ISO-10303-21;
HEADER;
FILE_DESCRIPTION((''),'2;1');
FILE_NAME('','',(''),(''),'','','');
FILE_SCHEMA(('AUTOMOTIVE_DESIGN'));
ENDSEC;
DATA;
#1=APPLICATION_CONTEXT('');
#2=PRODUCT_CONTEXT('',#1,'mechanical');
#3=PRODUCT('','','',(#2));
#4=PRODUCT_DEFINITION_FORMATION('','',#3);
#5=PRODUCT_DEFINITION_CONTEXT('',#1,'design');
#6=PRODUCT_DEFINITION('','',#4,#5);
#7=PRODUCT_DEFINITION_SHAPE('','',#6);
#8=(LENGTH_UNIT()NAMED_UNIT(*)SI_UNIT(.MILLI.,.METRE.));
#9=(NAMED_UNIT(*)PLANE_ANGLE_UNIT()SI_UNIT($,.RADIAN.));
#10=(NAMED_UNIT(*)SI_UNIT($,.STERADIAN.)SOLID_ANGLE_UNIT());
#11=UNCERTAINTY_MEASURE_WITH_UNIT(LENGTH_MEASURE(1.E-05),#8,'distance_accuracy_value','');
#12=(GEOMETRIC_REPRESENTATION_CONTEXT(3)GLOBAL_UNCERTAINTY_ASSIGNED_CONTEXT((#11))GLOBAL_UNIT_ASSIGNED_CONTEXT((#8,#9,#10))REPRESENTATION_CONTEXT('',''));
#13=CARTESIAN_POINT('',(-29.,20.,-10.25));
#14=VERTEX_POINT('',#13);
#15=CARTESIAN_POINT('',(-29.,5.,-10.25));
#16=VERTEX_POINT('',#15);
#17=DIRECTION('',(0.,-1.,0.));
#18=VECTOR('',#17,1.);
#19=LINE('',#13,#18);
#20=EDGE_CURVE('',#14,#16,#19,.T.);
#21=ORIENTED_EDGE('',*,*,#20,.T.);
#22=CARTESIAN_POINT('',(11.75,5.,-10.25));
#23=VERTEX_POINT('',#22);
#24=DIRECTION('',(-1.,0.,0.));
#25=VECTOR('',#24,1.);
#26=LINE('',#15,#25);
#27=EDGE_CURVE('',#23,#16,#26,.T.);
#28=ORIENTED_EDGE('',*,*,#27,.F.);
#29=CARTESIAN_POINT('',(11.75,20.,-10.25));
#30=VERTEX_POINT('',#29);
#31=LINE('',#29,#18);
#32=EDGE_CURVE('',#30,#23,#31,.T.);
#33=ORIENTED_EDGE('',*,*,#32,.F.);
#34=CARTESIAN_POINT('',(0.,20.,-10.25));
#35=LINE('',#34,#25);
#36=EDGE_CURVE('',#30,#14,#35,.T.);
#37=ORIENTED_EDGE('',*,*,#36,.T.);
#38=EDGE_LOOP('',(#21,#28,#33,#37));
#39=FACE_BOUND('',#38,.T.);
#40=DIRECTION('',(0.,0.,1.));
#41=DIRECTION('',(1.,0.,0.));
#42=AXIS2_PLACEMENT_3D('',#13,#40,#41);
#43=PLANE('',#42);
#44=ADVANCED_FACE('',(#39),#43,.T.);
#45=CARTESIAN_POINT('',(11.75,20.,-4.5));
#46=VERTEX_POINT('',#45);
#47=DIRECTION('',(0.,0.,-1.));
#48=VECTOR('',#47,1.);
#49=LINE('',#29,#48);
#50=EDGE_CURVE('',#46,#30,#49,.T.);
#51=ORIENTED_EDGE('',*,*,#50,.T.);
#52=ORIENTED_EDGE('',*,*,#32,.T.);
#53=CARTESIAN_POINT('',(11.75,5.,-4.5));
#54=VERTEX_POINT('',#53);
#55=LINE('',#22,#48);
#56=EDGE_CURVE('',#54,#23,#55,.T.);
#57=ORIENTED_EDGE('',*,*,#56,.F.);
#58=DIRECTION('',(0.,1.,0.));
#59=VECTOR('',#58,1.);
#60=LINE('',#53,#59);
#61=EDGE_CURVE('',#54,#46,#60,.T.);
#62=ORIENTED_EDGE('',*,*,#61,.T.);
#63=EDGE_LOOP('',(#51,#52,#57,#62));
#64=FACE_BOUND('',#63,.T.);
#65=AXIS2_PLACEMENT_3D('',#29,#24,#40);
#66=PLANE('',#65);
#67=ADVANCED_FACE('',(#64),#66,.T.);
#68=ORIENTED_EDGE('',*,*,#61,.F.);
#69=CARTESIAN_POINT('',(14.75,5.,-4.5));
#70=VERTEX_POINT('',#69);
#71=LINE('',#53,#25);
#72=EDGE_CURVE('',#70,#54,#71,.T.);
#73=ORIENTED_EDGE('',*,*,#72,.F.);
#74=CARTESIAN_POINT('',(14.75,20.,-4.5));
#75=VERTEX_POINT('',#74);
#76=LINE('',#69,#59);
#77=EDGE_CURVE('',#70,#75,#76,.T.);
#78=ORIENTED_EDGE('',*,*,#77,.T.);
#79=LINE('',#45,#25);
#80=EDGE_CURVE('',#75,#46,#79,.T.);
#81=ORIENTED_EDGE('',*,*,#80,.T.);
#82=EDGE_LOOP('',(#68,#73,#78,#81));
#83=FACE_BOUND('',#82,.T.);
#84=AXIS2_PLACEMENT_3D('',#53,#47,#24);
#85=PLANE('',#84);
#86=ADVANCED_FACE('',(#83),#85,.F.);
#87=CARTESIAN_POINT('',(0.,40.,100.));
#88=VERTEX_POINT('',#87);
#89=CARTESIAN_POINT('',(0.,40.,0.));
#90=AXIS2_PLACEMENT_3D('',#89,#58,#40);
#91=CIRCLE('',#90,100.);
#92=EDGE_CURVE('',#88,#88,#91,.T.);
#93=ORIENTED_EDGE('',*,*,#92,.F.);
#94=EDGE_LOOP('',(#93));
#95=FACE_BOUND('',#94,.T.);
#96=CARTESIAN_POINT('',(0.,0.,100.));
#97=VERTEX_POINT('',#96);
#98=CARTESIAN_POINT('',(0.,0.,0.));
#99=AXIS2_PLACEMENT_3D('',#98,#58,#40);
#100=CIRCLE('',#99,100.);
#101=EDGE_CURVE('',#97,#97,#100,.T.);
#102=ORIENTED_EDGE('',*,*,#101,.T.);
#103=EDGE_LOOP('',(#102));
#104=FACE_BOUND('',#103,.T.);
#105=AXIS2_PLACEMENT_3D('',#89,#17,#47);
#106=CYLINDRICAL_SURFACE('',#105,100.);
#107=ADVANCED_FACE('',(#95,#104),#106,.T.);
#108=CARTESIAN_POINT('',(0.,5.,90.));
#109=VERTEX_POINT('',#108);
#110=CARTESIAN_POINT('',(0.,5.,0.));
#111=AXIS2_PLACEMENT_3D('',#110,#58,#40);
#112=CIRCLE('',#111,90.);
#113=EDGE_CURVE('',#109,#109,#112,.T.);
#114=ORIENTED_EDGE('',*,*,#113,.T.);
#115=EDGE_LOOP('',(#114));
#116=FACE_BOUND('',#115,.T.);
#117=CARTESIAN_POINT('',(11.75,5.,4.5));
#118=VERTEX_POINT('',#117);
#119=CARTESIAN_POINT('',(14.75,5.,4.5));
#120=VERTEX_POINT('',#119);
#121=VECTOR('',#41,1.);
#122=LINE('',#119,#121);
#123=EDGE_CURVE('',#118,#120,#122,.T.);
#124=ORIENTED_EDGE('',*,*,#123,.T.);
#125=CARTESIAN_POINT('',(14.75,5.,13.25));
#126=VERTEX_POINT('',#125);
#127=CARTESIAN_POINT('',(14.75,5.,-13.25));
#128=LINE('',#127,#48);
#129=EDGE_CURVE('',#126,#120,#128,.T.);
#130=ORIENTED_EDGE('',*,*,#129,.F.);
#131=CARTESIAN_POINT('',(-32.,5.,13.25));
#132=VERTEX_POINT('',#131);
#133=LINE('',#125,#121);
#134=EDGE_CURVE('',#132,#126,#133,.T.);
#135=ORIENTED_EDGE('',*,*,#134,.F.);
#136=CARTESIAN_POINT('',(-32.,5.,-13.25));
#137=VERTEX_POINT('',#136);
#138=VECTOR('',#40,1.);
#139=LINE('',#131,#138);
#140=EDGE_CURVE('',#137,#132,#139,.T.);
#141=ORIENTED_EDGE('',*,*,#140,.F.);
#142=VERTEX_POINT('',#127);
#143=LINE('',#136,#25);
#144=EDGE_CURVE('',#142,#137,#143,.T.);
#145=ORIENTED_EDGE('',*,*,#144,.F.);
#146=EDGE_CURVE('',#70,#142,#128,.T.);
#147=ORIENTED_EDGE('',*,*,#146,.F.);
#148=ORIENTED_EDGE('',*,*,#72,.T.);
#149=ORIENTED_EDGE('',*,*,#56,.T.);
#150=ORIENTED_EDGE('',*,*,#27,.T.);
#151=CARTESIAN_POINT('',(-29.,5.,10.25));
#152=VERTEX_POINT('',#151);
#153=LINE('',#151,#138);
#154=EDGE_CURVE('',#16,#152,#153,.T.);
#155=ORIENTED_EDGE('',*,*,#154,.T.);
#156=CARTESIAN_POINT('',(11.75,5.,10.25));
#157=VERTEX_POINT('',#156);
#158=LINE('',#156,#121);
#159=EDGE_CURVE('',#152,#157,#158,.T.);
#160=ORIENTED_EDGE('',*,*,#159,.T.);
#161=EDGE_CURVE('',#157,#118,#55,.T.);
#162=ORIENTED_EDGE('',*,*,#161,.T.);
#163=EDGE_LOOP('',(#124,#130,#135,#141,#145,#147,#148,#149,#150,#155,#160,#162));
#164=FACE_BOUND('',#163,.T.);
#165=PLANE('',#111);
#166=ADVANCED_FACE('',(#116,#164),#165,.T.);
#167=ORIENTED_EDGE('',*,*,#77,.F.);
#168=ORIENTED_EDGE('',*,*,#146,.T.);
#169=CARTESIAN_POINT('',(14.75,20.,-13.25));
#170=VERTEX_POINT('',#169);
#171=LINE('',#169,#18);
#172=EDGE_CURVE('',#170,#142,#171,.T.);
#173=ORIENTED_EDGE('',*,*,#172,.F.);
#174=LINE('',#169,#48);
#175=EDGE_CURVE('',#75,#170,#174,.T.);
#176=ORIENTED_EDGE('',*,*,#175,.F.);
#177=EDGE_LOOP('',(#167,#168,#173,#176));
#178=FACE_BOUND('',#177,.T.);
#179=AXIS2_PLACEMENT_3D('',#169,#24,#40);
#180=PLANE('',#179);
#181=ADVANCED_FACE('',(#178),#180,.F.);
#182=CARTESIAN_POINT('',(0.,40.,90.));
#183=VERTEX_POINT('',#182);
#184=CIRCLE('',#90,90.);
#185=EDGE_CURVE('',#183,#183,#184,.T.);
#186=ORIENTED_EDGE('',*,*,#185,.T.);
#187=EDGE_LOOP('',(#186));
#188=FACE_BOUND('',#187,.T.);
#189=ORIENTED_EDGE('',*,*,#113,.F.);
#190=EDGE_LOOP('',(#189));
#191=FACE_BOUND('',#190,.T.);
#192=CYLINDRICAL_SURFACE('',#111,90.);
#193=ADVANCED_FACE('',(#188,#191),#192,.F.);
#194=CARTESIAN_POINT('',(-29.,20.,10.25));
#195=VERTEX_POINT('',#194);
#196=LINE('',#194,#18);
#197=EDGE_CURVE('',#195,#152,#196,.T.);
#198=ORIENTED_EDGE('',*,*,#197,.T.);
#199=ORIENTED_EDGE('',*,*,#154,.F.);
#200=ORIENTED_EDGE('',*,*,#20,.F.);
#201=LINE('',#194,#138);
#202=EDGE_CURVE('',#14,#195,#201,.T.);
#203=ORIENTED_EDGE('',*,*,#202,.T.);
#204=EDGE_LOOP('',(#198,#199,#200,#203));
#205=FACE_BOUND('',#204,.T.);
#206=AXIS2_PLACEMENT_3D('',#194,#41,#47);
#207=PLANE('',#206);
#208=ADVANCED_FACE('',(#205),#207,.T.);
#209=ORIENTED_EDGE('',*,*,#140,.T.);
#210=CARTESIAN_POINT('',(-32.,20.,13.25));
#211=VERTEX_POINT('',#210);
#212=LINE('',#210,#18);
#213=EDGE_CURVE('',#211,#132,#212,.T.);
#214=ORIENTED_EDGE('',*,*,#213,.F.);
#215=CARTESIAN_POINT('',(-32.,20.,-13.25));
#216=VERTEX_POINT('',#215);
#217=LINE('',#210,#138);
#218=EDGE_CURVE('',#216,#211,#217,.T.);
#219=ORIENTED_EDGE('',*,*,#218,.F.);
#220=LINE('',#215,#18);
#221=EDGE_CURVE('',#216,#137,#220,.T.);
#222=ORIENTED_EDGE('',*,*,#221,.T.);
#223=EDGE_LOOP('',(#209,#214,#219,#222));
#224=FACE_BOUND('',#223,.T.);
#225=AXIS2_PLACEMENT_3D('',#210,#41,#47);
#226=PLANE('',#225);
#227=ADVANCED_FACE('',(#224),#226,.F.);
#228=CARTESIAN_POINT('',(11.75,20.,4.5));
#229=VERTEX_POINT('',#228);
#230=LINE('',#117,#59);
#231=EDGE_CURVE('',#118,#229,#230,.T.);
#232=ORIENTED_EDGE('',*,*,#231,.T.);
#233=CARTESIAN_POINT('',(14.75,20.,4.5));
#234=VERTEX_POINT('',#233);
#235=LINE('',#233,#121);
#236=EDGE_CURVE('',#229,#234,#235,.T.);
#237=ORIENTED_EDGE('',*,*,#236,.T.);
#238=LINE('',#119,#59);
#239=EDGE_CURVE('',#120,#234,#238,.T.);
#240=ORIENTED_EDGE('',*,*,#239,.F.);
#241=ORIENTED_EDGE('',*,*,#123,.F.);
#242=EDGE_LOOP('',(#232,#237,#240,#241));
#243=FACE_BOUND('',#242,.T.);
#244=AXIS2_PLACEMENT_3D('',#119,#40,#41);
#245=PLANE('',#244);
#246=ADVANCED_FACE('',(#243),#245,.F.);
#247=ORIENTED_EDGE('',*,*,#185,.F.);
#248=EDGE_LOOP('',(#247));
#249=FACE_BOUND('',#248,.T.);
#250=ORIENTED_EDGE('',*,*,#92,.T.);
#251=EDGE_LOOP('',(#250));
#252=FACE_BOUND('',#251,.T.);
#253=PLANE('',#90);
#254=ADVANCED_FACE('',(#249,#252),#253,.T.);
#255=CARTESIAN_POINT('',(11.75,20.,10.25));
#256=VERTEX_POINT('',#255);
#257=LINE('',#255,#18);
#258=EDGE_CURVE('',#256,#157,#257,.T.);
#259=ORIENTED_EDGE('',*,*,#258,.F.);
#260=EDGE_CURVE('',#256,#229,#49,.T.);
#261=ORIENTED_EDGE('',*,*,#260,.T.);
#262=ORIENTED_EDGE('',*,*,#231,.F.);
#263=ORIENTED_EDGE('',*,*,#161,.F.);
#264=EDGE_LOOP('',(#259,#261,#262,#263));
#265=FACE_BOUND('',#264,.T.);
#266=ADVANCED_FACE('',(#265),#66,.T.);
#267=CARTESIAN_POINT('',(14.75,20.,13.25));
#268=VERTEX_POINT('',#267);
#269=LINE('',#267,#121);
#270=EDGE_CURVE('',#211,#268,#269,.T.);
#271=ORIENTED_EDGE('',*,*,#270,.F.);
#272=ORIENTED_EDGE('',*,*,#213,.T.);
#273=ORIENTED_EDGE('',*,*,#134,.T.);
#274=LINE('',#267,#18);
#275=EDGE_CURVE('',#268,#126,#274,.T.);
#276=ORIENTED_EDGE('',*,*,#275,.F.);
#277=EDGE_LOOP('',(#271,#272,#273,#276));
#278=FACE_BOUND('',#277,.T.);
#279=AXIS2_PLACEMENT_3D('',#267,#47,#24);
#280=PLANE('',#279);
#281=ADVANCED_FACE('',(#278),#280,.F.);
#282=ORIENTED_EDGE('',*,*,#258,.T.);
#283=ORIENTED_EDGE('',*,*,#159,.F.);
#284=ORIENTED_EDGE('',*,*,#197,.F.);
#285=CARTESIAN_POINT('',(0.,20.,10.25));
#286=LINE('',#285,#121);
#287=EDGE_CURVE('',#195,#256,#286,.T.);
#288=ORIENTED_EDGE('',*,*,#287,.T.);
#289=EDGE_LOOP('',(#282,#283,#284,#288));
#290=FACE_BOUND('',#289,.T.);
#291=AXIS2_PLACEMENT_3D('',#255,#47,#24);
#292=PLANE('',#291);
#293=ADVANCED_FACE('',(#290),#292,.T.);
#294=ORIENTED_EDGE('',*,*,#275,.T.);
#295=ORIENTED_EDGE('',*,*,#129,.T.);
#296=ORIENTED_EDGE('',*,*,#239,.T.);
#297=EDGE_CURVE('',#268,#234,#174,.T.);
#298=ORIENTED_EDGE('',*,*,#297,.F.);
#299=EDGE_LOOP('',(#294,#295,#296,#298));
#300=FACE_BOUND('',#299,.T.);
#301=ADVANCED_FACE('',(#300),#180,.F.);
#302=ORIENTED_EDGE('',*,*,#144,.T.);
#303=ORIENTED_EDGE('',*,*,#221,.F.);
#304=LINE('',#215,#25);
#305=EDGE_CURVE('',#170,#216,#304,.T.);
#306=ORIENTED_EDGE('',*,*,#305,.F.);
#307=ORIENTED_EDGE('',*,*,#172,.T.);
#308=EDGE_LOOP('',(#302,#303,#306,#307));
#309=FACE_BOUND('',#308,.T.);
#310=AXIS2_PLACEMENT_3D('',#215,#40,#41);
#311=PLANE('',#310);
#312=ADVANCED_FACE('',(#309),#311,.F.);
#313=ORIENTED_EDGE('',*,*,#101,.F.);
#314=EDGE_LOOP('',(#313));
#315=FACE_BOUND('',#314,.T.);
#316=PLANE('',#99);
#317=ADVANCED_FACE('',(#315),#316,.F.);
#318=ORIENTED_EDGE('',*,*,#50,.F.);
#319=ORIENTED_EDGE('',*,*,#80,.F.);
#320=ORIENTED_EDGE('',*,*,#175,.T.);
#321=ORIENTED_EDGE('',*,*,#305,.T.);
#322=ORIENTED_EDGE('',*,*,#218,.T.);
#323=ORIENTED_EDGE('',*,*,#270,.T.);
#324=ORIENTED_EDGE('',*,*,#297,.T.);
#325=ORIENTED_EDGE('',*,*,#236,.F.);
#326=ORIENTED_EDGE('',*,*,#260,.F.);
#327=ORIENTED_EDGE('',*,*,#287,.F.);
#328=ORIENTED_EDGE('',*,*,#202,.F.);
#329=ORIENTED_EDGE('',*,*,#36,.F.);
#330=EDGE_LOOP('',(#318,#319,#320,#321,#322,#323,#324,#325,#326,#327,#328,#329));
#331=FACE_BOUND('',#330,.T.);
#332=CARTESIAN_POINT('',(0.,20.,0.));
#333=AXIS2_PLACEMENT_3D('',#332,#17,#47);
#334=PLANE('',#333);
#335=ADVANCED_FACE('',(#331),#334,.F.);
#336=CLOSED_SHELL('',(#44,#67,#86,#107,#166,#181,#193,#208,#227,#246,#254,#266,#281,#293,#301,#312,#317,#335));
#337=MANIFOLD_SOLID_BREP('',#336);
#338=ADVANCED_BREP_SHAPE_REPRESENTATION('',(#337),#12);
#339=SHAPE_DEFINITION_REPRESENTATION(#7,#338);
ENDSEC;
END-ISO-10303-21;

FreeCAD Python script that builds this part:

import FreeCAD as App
import Part
import Sketcher

V = App.Vector


def add_polygon(sketch, points):
    """Adds a closed chain of lines whose ends are joined by coincident constraints."""
    first, n = sketch.GeometryCount, len(points)
    for a, b in zip(points, points[1:] + points[:1]):
        sketch.addGeometry(Part.LineSegment(App.Vector(*a, 0), App.Vector(*b, 0)), False)
    for i in range(n):
        sketch.addConstraint(Sketcher.Constraint("Coincident", first + i, 2, first + (i + 1) % n, 1))

doc = App.newDocument("Part")
body = doc.addObject("PartDesign::Body", "Body")

sketch1 = body.newObject("Sketcher::SketchObject", "Sketch")
sketch1.AttachmentSupport = (doc.getObject("XZ_Plane"), [""])
sketch1.MapMode = "FlatFace"
sketch1.addGeometry(Part.Circle(V(0, 0, 0), V(0, 0, 1), 100), False)
sketch1.addConstraint(Sketcher.Constraint("Coincident", 0, 3, -1, 1))
sketch1.addConstraint(Sketcher.Constraint("Diameter", 0, 200.0))
pad1 = body.newObject("PartDesign::Pad", "Pad")
pad1.Profile = sketch1
pad1.Length = 40
pad1.Reversed = True

sketch2 = body.newObject("Sketcher::SketchObject", "Sketch001")
sketch2.AttachmentSupport = (doc.getObject("XZ_Plane"), [""])
sketch2.MapMode = "FlatFace"
sketch2.AttachmentOffset = App.Placement(V(0, 0, -40), App.Rotation())
sketch2.addGeometry(Part.Circle(V(0, 0, 0), V(0, 0, 1), 90), False)
sketch2.addConstraint(Sketcher.Constraint("Coincident", 0, 3, -1, 1))
sketch2.addConstraint(Sketcher.Constraint("Diameter", 0, 180.0))
pocket1 = body.newObject("PartDesign::Pocket", "Pocket")
pocket1.Profile = sketch2
pocket1.Length = 35
pocket1.Reversed = True

sketch3 = body.newObject("Sketcher::SketchObject", "Sketch002")
sketch3.AttachmentSupport = (doc.getObject("XZ_Plane"), [""])
sketch3.MapMode = "FlatFace"
sketch3.AttachmentOffset = App.Placement(V(0, 0, -5), App.Rotation())
add_polygon(sketch3, [(-32, -13), (-32, 13), (15, 13), (15, -13)])
add_polygon(sketch3, [(-29, -10), (12, -10), (12, 10), (-29, 10)])
sketch3.addConstraint(Sketcher.Constraint("Vertical", 0))
sketch3.addConstraint(Sketcher.Constraint("Horizontal", 1))
sketch3.addConstraint(Sketcher.Constraint("Vertical", 2))
sketch3.addConstraint(Sketcher.Constraint("Horizontal", 3))
sketch3.addConstraint(Sketcher.Constraint("Horizontal", 4))
sketch3.addConstraint(Sketcher.Constraint("Vertical", 5))
sketch3.addConstraint(Sketcher.Constraint("Horizontal", 6))
sketch3.addConstraint(Sketcher.Constraint("Vertical", 7))
sketch3.addConstraint(Sketcher.Constraint("DistanceY", 0, 1, 0, 2, 26.5))
sketch3.addConstraint(Sketcher.Constraint("DistanceY", 5, 1, 5, 2, 20.5))
sketch3.addConstraint(Sketcher.Constraint("DistanceX", 0, 2, -1, 1, 32.0))
sketch3.addConstraint(Sketcher.Constraint("DistanceX", 6, 2, -1, 1, 29.0))
sketch3.addConstraint(Sketcher.Constraint("DistanceX", 4, 2, 2, 2, 3.0))
sketch3.addConstraint(Sketcher.Constraint("DistanceY", 2, 2, 4, 2, 3.0))
sketch3.addConstraint(Sketcher.Constraint("DistanceX", 1, 1, 1, 2, 46.75))
sketch3.addConstraint(Sketcher.Constraint("DistanceY", -1, 1, 0, 2, 13.25))
pad2 = body.newObject("PartDesign::Pad", "Pad001")
pad2.Profile = sketch3
pad2.Length = 15
pad2.Reversed = True

sketch4 = body.newObject("Sketcher::SketchObject", "Sketch003")
sketch4.AttachmentSupport = (doc.getObject("XZ_Plane"), [""])
sketch4.MapMode = "FlatFace"
sketch4.AttachmentOffset = App.Placement(V(0, 0, -20), App.Rotation())
add_polygon(sketch4, [(11.8, -4.5), (11.8, 4.5), (14.8, 4.5), (14.8, -4.5)])
sketch4.addConstraint(Sketcher.Constraint("Vertical", 0))
sketch4.addConstraint(Sketcher.Constraint("Horizontal", 1))
sketch4.addConstraint(Sketcher.Constraint("Vertical", 2))
sketch4.addConstraint(Sketcher.Constraint("Horizontal", 3))
sketch4.addConstraint(Sketcher.Constraint("DistanceX", 1, 1, 1, 2, 3.0))
sketch4.addConstraint(Sketcher.Constraint("DistanceY", 0, 1, 0, 2, 9.0))
sketch4.addConstraint(Sketcher.Constraint("DistanceY", -1, 1, 0, 2, 4.5))
sketch4.addConstraint(Sketcher.Constraint("DistanceX", -1, 1, 0, 2, 11.75))
pocket2 = body.newObject("PartDesign::Pocket", "Pocket001")
pocket2.Profile = sketch4
pocket2.Length = 15
pocket2.Reversed = True

doc.recompute()
